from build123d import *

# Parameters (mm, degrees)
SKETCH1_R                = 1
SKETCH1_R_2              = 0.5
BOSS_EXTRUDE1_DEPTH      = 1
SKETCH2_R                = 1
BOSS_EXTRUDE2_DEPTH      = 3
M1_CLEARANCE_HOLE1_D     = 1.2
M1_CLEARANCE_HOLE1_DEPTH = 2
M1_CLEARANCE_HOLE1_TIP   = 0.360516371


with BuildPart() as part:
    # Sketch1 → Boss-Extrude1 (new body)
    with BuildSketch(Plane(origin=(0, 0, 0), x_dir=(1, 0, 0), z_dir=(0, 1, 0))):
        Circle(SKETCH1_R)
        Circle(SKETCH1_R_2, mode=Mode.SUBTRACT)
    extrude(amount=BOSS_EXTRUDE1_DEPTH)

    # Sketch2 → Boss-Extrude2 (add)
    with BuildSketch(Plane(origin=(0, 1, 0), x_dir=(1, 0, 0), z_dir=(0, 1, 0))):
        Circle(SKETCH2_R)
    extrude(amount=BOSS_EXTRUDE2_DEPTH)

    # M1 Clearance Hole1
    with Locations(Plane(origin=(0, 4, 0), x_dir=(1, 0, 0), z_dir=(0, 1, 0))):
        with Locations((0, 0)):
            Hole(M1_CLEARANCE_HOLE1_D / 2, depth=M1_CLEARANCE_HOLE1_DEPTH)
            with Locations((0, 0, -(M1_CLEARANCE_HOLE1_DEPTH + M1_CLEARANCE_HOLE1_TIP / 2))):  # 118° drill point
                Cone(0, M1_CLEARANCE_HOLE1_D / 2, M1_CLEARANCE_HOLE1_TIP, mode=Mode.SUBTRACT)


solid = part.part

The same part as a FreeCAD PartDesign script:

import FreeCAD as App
import Part
import Sketcher
from FreeCAD import Vector
Q = App.Units.Quantity

doc = App.newDocument("Part")
body = doc.addObject("PartDesign::Body", "Body")

sketch1 = body.newObject("Sketcher::SketchObject", "Sketch")
sketch1.AttachmentSupport = (doc.getObject("XZ_Plane"), [""])
sketch1.MapMode = "FlatFace"
sketch1.addGeometry(Part.Circle(Vector(0, 0, 0), Vector(0, 0, 1), 1), False)
sketch1.addGeometry(Part.Circle(Vector(0, 0, 0), Vector(0, 0, 1), 0.5), False)
sketch1.addConstraint(Sketcher.Constraint("Coincident", 0, 3, -1, 1))
sketch1.addConstraint(Sketcher.Constraint("Coincident", 1, 3, -1, 1))
sketch1.addConstraint(Sketcher.Constraint("Diameter", 0, Q("2 mm")))
sketch1.addConstraint(Sketcher.Constraint("Diameter", 1, Q("1 mm")))
pad1 = body.newObject("PartDesign::Pad", "Pad")
pad1.Profile = sketch1
pad1.Length = 1
pad1.Reversed = True

sketch2 = body.newObject("Sketcher::SketchObject", "Sketch001")
sketch2.AttachmentSupport = (doc.getObject("XZ_Plane"), [""])
sketch2.MapMode = "FlatFace"
sketch2.AttachmentOffset = App.Placement(Vector(0, 0, -1), App.Rotation())
sketch2.addGeometry(Part.Circle(Vector(0, 0, 0), Vector(0, 0, 1), 1), False)
sketch2.addConstraint(Sketcher.Constraint("Coincident", 0, 3, -1, 1))
sketch2.addConstraint(Sketcher.Constraint("Diameter", 0, Q("2 mm")))
pad2 = body.newObject("PartDesign::Pad", "Pad001")
pad2.Profile = sketch2
pad2.Length = 3
pad2.Reversed = True

sketch3 = body.newObject("Sketcher::SketchObject", "Sketch002")
sketch3.AttachmentSupport = (doc.getObject("XZ_Plane"), [""])
sketch3.MapMode = "FlatFace"
sketch3.AttachmentOffset = App.Placement(Vector(0, 0, -4), App.Rotation())
sketch3.addGeometry(Part.Circle(Vector(0, 0, 0), Vector(0, 0, 1), 0.6), False)
sketch3.addConstraint(Sketcher.Constraint("Coincident", 0, 3, -1, 1))
sketch3.addConstraint(Sketcher.Constraint("Diameter", 0, Q("1.2 mm")))
doc.recompute()
hole = body.newObject("PartDesign::Hole", "Hole")
hole.Profile = sketch3
hole.ThreadType = "None"
hole.Diameter = 1.2
hole.DepthType = "Dimension"
hole.Depth = 2
hole.DrillPoint = "Angled"
hole.DrillPointAngle = 118
hole.Reversed = True

doc.recompute()
